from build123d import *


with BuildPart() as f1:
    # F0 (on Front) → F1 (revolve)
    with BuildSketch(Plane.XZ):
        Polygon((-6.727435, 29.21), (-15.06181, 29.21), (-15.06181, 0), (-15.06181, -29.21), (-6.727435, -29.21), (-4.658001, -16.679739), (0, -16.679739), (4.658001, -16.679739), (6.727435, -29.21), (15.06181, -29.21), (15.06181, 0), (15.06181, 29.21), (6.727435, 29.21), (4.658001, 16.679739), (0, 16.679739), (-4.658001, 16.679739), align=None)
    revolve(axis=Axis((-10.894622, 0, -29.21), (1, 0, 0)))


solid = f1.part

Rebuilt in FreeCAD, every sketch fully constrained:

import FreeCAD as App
import Part
import Sketcher

V = App.Vector
Q = App.Units.Quantity

doc = App.newDocument("Part")
body = doc.addObject("PartDesign::Body", "Body")

# Sketch on XZ plane
sketch1 = doc.addObject("Sketcher::SketchObject", "Sketch")
body.addObject(sketch1)
sketch1.AttachmentSupport = (doc.XZ_Plane, [""])
sketch1.MapMode = "FlatFace"
sketch1.addGeometry(Part.LineSegment(V(-7, 29, 0), V(-15, 29, 0)), False)
sketch1.addGeometry(Part.LineSegment(V(-15, 29, 0), V(-15, -29, 0)), False)
sketch1.addGeometry(Part.LineSegment(V(-15, -29, 0), V(-7, -29, 0)), False)
sketch1.addGeometry(Part.LineSegment(V(-7, -29, 0), V(-5, -17, 0)), False)
sketch1.addGeometry(Part.LineSegment(V(-5, -17, 0), V(5, -17, 0)), False)
sketch1.addGeometry(Part.LineSegment(V(5, -17, 0), V(7, -29, 0)), False)
sketch1.addGeometry(Part.LineSegment(V(7, -29, 0), V(15, -29, 0)), False)
sketch1.addGeometry(Part.LineSegment(V(15, -29, 0), V(15, 29, 0)), False)
sketch1.addGeometry(Part.LineSegment(V(15, 29, 0), V(7, 29, 0)), False)
sketch1.addGeometry(Part.LineSegment(V(7, 29, 0), V(5, 17, 0)), False)
sketch1.addGeometry(Part.LineSegment(V(5, 17, 0), V(-5, 17, 0)), False)
sketch1.addGeometry(Part.LineSegment(V(-5, 17, 0), V(-7, 29, 0)), False)
sketch1.addGeometry(Part.LineSegment(V(-15, -29, 0), V(15, -29, 0)), True)  # axis
sketch1.addConstraint(Sketcher.Constraint("Coincident", 0, 2, 1, 1))
sketch1.addConstraint(Sketcher.Constraint("Coincident", 1, 2, 2, 1))
sketch1.addConstraint(Sketcher.Constraint("Coincident", 2, 2, 3, 1))
sketch1.addConstraint(Sketcher.Constraint("Coincident", 3, 2, 4, 1))
sketch1.addConstraint(Sketcher.Constraint("Coincident", 4, 2, 5, 1))
sketch1.addConstraint(Sketcher.Constraint("Coincident", 5, 2, 6, 1))
sketch1.addConstraint(Sketcher.Constraint("Coincident", 6, 2, 7, 1))
sketch1.addConstraint(Sketcher.Constraint("Coincident", 7, 2, 8, 1))
sketch1.addConstraint(Sketcher.Constraint("Coincident", 8, 2, 9, 1))
sketch1.addConstraint(Sketcher.Constraint("Coincident", 9, 2, 10, 1))
sketch1.addConstraint(Sketcher.Constraint("Coincident", 10, 2, 11, 1))
sketch1.addConstraint(Sketcher.Constraint("Coincident", 11, 2, 0, 1))
sketch1.addConstraint(Sketcher.Constraint("Horizontal", 0))
sketch1.addConstraint(Sketcher.Constraint("Vertical", 1))
sketch1.addConstraint(Sketcher.Constraint("Horizontal", 2))
sketch1.addConstraint(Sketcher.Constraint("Horizontal", 4))
sketch1.addConstraint(Sketcher.Constraint("Horizontal", 6))
sketch1.addConstraint(Sketcher.Constraint("Vertical", 7))
sketch1.addConstraint(Sketcher.Constraint("Horizontal", 8))
sketch1.addConstraint(Sketcher.Constraint("Horizontal", 10))
sketch1.addConstraint(Sketcher.Constraint("Horizontal", 12))
sketch1.addConstraint(Sketcher.Constraint("Coincident", 12, 1, 1, 2))
sketch1.addConstraint(Sketcher.Constraint("Coincident", 12, 2, 6, 2))
sketch1.addConstraint(Sketcher.Constraint("Symmetric", 0, 2, 6, 2, -1, 1))
sketch1.addConstraint(Sketcher.Constraint("Symmetric", 2, 2, 8, 2, -1, 1))
sketch1.addConstraint(Sketcher.Constraint("Symmetric", 3, 2, 9, 2, -1, 1))
sketch1.addConstraint(Sketcher.Constraint("Parallel", 5, 11))
sketch1.addConstraint(Sketcher.Constraint("Vertical", 5, 2, 8, 2))
sketch1.addConstraint(Sketcher.Constraint("Vertical", 4, 2, 9, 2))
sketch1.addConstraint(Sketcher.Constraint("Vertical", 3, 2, 10, 2))
sketch1.addConstraint(Sketcher.Constraint("DistanceY", 1, 2, 1, 1, Q("2.3 in")))
sketch1.addConstraint(Sketcher.Constraint("Distance", 3, Q("0.5 in")))
sketch1.addConstraint(Sketcher.Constraint("DistanceX", 0, 2, 0, 1, Q("0.328125 in")))
sketch1.addConstraint(Sketcher.Constraint("DistanceX", 4, 1, 4, 2, 9.316002))
sketch1.addConstraint(Sketcher.Constraint("DistanceX", 12, 1, 12, 2, 30.12362))
revolution = doc.addObject("PartDesign::Revolution", "Revolution")
body.addObject(revolution)
revolution.Profile = sketch1
revolution.ReferenceAxis = (sketch1, ["Axis0"])
revolution.Angle = 360

doc.recompute()
